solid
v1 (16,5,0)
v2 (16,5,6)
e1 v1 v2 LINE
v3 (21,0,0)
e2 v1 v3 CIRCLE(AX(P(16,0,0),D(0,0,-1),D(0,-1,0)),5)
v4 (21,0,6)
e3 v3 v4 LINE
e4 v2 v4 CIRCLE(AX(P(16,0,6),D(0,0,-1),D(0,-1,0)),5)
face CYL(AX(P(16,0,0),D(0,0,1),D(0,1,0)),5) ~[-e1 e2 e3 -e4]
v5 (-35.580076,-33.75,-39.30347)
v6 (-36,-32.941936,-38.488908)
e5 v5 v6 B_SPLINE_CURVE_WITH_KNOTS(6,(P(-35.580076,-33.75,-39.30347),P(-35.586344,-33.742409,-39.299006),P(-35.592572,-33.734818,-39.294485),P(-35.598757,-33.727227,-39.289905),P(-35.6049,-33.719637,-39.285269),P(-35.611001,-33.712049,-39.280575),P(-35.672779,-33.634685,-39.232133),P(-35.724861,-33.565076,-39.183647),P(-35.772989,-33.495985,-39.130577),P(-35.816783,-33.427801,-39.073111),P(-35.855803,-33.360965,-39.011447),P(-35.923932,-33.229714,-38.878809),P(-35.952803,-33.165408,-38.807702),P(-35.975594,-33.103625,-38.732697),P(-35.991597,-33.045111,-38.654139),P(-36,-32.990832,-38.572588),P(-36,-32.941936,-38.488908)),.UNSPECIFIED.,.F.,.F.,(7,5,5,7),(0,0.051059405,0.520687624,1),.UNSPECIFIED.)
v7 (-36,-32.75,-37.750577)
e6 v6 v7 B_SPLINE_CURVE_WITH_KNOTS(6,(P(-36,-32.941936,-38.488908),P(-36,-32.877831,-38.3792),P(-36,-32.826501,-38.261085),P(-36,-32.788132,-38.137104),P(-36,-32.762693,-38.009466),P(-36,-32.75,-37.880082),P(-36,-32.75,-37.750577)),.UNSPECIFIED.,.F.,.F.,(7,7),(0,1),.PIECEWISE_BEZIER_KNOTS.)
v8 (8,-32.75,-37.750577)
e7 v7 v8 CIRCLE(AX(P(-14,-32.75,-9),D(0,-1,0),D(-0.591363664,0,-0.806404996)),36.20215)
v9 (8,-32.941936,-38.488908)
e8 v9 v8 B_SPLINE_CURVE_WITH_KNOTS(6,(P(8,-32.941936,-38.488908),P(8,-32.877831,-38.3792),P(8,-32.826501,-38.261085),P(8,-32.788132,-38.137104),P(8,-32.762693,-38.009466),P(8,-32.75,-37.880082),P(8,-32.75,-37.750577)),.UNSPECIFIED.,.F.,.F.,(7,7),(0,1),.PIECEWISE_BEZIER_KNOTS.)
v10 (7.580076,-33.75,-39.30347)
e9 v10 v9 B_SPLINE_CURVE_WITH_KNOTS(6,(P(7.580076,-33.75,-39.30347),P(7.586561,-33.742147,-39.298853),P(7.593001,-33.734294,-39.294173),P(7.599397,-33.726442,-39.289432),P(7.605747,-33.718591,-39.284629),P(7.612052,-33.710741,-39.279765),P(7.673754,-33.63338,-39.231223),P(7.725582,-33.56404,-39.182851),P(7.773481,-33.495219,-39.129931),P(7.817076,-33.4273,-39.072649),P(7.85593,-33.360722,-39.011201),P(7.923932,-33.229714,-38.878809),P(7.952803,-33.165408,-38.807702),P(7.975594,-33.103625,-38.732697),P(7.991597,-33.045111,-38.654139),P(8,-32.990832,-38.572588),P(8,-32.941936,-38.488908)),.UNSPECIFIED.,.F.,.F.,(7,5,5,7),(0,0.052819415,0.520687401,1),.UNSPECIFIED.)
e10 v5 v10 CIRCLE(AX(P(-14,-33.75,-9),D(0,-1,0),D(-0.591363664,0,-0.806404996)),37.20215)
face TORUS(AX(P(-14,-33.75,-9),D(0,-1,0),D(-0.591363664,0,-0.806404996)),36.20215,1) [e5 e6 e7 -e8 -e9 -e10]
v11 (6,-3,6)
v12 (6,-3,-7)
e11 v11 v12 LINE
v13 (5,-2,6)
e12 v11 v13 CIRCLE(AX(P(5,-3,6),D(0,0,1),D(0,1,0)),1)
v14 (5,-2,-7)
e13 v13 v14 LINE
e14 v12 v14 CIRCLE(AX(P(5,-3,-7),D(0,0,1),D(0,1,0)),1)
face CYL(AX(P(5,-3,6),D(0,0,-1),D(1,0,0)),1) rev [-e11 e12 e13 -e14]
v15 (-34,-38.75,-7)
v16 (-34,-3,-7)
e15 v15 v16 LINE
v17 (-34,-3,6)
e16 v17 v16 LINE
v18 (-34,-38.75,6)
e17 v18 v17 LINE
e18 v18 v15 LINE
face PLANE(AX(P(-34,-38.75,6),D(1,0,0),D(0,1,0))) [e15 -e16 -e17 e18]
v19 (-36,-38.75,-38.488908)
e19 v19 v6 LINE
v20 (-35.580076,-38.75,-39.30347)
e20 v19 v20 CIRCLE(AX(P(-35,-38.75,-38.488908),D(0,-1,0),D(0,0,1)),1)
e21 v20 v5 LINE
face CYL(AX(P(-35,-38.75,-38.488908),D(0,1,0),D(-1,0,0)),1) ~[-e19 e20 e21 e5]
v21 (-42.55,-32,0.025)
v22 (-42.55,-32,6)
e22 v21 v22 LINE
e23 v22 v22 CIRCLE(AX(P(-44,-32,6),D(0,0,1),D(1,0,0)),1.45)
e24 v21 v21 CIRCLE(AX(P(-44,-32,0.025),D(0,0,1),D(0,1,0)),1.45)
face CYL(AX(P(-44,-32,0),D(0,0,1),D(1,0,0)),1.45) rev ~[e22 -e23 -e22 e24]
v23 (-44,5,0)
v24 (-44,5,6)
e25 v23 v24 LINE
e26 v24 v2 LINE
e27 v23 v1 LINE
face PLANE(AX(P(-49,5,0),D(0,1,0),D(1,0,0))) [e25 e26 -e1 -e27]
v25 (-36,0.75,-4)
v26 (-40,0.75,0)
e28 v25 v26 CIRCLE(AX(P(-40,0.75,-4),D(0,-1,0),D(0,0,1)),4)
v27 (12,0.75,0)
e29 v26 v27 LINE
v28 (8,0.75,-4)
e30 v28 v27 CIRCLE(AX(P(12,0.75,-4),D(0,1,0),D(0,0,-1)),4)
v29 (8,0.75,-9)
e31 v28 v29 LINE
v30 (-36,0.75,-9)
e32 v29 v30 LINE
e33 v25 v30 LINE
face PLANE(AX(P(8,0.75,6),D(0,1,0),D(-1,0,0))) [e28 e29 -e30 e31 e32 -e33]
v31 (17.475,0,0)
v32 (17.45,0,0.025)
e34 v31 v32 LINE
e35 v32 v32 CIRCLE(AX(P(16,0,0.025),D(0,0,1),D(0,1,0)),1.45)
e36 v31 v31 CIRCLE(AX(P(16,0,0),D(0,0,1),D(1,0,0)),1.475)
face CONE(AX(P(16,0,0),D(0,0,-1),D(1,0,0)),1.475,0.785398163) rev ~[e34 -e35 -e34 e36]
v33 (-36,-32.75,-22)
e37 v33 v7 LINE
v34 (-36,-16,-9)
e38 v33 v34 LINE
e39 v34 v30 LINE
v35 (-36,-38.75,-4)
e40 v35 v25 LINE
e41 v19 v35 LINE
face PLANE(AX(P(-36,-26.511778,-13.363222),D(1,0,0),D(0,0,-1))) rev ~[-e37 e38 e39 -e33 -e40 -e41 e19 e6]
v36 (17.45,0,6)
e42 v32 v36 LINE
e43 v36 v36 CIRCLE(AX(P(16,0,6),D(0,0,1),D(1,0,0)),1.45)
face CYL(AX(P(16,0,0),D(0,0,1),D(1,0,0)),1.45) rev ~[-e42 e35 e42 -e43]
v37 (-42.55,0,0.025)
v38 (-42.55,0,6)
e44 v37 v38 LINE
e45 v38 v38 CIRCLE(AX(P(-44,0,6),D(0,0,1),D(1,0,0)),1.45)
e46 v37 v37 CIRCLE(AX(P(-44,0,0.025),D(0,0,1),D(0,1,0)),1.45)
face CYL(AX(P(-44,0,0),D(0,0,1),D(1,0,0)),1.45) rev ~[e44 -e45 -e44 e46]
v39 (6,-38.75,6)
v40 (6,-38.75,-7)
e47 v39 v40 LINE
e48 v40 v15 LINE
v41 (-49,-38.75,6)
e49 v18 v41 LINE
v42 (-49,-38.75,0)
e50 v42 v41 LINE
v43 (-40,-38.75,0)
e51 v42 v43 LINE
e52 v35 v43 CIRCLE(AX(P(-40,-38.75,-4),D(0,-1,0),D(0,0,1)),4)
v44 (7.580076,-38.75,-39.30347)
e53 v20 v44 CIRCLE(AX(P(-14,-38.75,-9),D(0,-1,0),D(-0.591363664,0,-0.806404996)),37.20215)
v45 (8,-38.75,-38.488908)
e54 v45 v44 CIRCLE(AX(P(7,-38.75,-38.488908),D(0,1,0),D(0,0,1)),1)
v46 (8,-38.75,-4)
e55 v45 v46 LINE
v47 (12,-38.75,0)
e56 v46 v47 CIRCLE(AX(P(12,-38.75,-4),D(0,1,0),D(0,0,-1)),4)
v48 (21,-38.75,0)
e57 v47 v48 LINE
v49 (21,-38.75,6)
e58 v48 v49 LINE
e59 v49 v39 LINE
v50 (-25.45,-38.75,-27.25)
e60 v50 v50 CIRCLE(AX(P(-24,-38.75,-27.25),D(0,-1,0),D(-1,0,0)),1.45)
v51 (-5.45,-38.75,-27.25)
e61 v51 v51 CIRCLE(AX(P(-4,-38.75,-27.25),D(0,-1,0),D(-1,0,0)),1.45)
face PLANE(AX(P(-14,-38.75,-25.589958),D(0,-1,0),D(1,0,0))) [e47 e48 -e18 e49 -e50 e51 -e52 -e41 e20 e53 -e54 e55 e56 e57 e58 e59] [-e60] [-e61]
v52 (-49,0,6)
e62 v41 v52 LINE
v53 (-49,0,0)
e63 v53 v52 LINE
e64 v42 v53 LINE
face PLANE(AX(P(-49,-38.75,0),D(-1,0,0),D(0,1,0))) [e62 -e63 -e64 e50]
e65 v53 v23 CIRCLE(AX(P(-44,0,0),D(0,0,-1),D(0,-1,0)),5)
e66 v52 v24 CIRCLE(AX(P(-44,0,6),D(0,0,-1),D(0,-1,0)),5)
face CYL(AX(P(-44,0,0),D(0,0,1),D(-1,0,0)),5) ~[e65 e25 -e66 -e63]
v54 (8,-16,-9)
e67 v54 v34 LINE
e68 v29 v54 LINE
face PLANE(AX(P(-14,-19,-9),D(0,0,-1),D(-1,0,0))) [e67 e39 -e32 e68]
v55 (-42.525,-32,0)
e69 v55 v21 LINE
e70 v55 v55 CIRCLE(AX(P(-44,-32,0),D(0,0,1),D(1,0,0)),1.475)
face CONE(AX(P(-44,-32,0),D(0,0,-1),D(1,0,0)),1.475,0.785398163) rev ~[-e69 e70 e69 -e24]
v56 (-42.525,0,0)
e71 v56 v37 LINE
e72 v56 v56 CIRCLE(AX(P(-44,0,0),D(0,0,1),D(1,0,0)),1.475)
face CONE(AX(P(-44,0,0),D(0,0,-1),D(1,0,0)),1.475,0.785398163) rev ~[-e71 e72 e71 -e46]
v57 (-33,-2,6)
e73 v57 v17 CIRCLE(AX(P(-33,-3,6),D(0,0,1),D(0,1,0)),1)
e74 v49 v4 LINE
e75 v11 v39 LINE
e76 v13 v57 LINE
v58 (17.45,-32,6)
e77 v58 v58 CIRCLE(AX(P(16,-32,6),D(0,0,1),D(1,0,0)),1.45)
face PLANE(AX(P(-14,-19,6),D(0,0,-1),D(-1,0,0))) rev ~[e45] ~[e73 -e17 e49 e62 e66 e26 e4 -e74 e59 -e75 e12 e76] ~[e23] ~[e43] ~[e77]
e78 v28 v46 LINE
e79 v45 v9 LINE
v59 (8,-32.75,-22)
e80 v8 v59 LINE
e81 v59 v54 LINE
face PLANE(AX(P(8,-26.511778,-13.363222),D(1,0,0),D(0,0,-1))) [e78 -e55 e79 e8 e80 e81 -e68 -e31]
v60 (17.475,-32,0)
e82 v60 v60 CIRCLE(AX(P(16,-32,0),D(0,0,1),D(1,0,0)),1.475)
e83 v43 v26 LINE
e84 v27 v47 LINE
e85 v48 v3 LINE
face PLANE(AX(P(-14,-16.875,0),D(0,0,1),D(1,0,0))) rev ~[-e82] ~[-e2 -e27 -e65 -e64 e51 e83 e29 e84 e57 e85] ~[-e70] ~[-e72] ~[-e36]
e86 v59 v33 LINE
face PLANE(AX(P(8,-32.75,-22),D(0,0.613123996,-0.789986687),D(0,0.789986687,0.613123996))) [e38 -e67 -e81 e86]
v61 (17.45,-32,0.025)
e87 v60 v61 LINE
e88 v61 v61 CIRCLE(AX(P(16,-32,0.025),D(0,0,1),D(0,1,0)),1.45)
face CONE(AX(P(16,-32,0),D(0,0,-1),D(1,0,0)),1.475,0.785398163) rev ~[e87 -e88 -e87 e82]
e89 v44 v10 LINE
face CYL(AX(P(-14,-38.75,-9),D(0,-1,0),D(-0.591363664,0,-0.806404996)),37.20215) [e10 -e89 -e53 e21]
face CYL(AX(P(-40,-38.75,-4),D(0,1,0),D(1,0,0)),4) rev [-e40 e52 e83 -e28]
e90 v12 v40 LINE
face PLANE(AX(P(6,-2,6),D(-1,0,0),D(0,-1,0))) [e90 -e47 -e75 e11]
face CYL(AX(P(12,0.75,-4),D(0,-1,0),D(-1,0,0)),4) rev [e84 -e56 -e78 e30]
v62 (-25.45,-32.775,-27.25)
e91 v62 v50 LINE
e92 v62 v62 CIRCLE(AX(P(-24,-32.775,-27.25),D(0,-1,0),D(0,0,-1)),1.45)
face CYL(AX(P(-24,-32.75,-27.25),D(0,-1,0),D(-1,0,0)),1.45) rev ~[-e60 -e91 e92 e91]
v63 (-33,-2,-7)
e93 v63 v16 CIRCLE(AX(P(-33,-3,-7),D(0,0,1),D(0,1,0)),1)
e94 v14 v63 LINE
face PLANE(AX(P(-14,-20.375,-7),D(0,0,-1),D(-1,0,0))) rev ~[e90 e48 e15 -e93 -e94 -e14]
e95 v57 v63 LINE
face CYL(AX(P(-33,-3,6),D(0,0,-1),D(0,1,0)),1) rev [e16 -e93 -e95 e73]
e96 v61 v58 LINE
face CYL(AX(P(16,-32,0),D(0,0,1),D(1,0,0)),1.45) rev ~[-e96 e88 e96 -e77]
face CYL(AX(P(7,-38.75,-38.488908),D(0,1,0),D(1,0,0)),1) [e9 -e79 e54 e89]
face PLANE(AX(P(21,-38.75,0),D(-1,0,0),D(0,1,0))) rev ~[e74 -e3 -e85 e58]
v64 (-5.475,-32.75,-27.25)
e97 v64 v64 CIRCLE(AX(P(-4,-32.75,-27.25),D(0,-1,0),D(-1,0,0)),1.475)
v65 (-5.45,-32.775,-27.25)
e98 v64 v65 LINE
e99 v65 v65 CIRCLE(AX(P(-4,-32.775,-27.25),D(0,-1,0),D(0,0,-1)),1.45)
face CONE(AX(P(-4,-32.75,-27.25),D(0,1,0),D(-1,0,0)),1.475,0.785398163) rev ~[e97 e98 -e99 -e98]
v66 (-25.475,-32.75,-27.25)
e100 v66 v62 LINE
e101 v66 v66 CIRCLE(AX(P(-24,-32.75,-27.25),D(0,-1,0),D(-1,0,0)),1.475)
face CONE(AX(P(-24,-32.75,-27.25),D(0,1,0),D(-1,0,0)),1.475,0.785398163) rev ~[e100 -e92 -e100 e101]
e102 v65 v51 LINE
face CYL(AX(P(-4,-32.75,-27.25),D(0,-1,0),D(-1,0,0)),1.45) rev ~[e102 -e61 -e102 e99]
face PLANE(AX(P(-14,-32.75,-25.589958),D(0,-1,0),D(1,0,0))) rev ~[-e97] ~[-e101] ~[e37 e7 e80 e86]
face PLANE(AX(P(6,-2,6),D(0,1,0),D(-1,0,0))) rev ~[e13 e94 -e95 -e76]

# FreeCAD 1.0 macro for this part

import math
import FreeCAD as App
import Part
import Sketcher
from FreeCAD import Vector


def edges_at(feature, points):
    """Names of the edges that pass closest to the given points."""
    edges = feature.Shape.Edges
    near = lambda p: min(range(len(edges)), key=lambda i: edges[i].distToShape(Part.Vertex(*p))[0])
    return sorted({f"Edge{near(p) + 1}" for p in points})


def add_polygon(sketch, points):
    """Adds a closed chain of lines whose ends are joined by coincident constraints."""
    first, n = sketch.GeometryCount, len(points)
    for a, b in zip(points, points[1:] + points[:1]):
        sketch.addGeometry(Part.LineSegment(App.Vector(*a, 0), App.Vector(*b, 0)), False)
    for i in range(n):
        sketch.addConstraint(Sketcher.Constraint("Coincident", first + i, 2, first + (i + 1) % n, 1))

doc = App.newDocument("Part")
body = doc.addObject("PartDesign::Body", "Body")

sketch1 = body.newObject("Sketcher::SketchObject", "Sketch")
sketch1.AttachmentSupport = (doc.getObject("XY_Plane"), [""])
sketch1.MapMode = "FlatFace"
add_polygon(sketch1, [(-49, 5), (-49, -39), (21, -39), (21, 5)])
sketch1.addConstraint(Sketcher.Constraint("Vertical", 0))
sketch1.addConstraint(Sketcher.Constraint("Horizontal", 1))
sketch1.addConstraint(Sketcher.Constraint("Vertical", 2))
sketch1.addConstraint(Sketcher.Constraint("Horizontal", 3))
sketch1.addConstraint(Sketcher.Constraint("DistanceX", 1, 1, 1, 2, 70.0))
sketch1.addConstraint(Sketcher.Constraint("DistanceX", 0, 2, -1, 1, 49.0))
sketch1.addConstraint(Sketcher.Constraint("DistanceY", -1, 1, 2, 2, 5.0))
sketch1.addConstraint(Sketcher.Constraint("DistanceY", 0, 2, 0, 1, 43.75))
pad1 = body.newObject("PartDesign::Pad", "Pad")
pad1.Profile = sketch1
pad1.Length = 6

sketch2 = body.newObject("Sketcher::SketchObject", "Sketch001")
sketch2.AttachmentSupport = (doc.getObject("XY_Plane"), [""])
sketch2.MapMode = "FlatFace"
sketch2.AttachmentOffset = App.Placement(Vector(0, 0, 6), App.Rotation())
add_polygon(sketch2, [(8, 1), (-36, 1), (-36, -39), (8, -39)])
sketch2.addConstraint(Sketcher.Constraint("Horizontal", 0))
sketch2.addConstraint(Sketcher.Constraint("Vertical", 1))
sketch2.addConstraint(Sketcher.Constraint("Horizontal", 2))
sketch2.addConstraint(Sketcher.Constraint("Vertical", 3))
sketch2.addConstraint(Sketcher.Constraint("DistanceX", 0, 2, 0, 1, 44.0))
sketch2.addConstraint(Sketcher.Constraint("DistanceY", 1, 2, 1, 1, 39.5))
sketch2.addConstraint(Sketcher.Constraint("DistanceX", 0, 2, -1, 1, 36.0))
sketch2.addConstraint(Sketcher.Constraint("DistanceY", -1, 1, 0, 2, 0.75))
pad2 = body.newObject("PartDesign::Pad", "Pad001")
pad2.Profile = sketch2
pad2.Length = 15
pad2.Reversed = True

sketch3 = body.newObject("Sketcher::SketchObject", "Sketch002")
sketch3.AttachmentSupport = (doc.getObject("XY_Plane"), [""])
sketch3.MapMode = "FlatFace"
sketch3.AttachmentOffset = App.Placement(Vector(0, 0, 6), App.Rotation())
add_polygon(sketch3, [(6, -2), (-34, -2), (-34, -39), (6, -39)])
sketch3.addConstraint(Sketcher.Constraint("Horizontal", 0))
sketch3.addConstraint(Sketcher.Constraint("Vertical", 1))
sketch3.addConstraint(Sketcher.Constraint("Horizontal", 2))
sketch3.addConstraint(Sketcher.Constraint("Vertical", 3))
sketch3.addConstraint(Sketcher.Constraint("DistanceX", 0, 2, 0, 1, 40.0))
sketch3.addConstraint(Sketcher.Constraint("DistanceX", 0, 2, -1, 1, 34.0))
sketch3.addConstraint(Sketcher.Constraint("DistanceY", 0, 2, -1, 1, 2.0))
sketch3.addConstraint(Sketcher.Constraint("DistanceY", 1, 2, 1, 1, 36.75))
pocket1 = body.newObject("PartDesign::Pocket", "Pocket")
pocket1.Profile = sketch3
pocket1.Length = 13

sketch4 = body.newObject("Sketcher::SketchObject", "Sketch003")
sketch4.AttachmentSupport = (doc.getObject("XZ_Plane"), [""])
sketch4.MapMode = "FlatFace"
sketch4.AttachmentOffset = App.Placement(Vector(0, 0, 38.75), App.Rotation())
sketch4.addGeometry(Part.LineSegment(Vector(-36, -9, 0), Vector(-36, -39, 0)), False)
sketch4.addGeometry(Part.ArcOfCircle(Part.Circle(Vector(-14, -9, 0), Vector(0, 0, 1), 37), math.radians(-126), math.radians(-54)), False)
sketch4.addGeometry(Part.LineSegment(Vector(8, -39, 0), Vector(8, -9, 0)), False)
sketch4.addGeometry(Part.LineSegment(Vector(8, -9, 0), Vector(-36, -9, 0)), False)
sketch4.addConstraint(Sketcher.Constraint("Coincident", 0, 2, 1, 1))
sketch4.addConstraint(Sketcher.Constraint("Coincident", 1, 2, 2, 1))
sketch4.addConstraint(Sketcher.Constraint("Coincident", 2, 2, 3, 1))
sketch4.addConstraint(Sketcher.Constraint("Coincident", 3, 2, 0, 1))
sketch4.addConstraint(Sketcher.Constraint("Vertical", 0))
sketch4.addConstraint(Sketcher.Constraint("Vertical", 2))
sketch4.addConstraint(Sketcher.Constraint("Horizontal", 3))
sketch4.addConstraint(Sketcher.Constraint("Horizontal", 0, 2, 1, 2))
sketch4.addConstraint(Sketcher.Constraint("Horizontal", 1, 3, 2, 2))
sketch4.addConstraint(Sketcher.Constraint("DistanceX", 3, 2, 3, 1, 44.0))
sketch4.addConstraint(Sketcher.Constraint("DistanceY", 0, 2, 0, 1, 30.0))
sketch4.addConstraint(Sketcher.Constraint("DistanceX", 1, 3, -1, 1, 14.0))
sketch4.addConstraint(Sketcher.Constraint("DistanceY", 1, 3, -1, 1, 9.0))
pad3 = body.newObject("PartDesign::Pad", "Pad002")
pad3.Profile = sketch4
pad3.Length = 6
pad3.Reversed = True

sketch5 = body.newObject("Sketcher::SketchObject", "Sketch004")
sketch5.AttachmentSupport = (doc.getObject("YZ_Plane"), [""])
sketch5.MapMode = "FlatFace"
sketch5.AttachmentOffset = App.Placement(Vector(0, 0, 8), App.Rotation())
add_polygon(sketch5, [(-33, -9), (-33, -22), (-16, -9)])
sketch5.addConstraint(Sketcher.Constraint("Vertical", 0))
sketch5.addConstraint(Sketcher.Constraint("Horizontal", 2))
sketch5.addConstraint(Sketcher.Constraint("DistanceY", 0, 2, 0, 1, 13.0))
sketch5.addConstraint(Sketcher.Constraint("DistanceY", 0, 2, -1, 1, 22.0))
sketch5.addConstraint(Sketcher.Constraint("DistanceX", 1, 2, -1, 1, 16.0))
sketch5.addConstraint(Sketcher.Constraint("DistanceX", 2, 2, 2, 1, 16.75))
pad4 = body.newObject("PartDesign::Pad", "Pad003")
pad4.Profile = sketch5
pad4.Length = 44
pad4.Reversed = True
doc.recompute()

fillet = body.newObject("PartDesign::Fillet", "Fillet")
fillet.Base = (pad4, edges_at(pad4, [(-36, -35.75, -39), (-14, -32.75, -46.202), (8, -35.75, -39)]))
fillet.Radius = 1
doc.recompute()

fillet2 = body.newObject("PartDesign::Fillet", "Fillet001")
fillet2.Base = (fillet, edges_at(fillet, [(8, -19, 0), (-36, -19, 0)]))
fillet2.Radius = 4
doc.recompute()

fillet3 = body.newObject("PartDesign::Fillet", "Fillet002")
fillet3.Base = (fillet2, edges_at(fillet2, [(6, -2, -0.5), (-34, -2, -0.5)]))
fillet3.Radius = 1
doc.recompute()

fillet4 = body.newObject("PartDesign::Fillet", "Fillet003")
fillet4.Base = (fillet3, edges_at(fillet3, [(-49, 5, 3), (21, 5, 3)]))
fillet4.Radius = 5

sketch6 = body.newObject("Sketcher::SketchObject", "Sketch005")
sketch6.AttachmentSupport = (doc.getObject("XY_Plane"), [""])
sketch6.MapMode = "FlatFace"
sketch6.addGeometry(Part.Circle(Vector(16, 0, 0), Vector(0, 0, 1), 1.4), False)
sketch6.addGeometry(Part.Circle(Vector(16, -32, 0), Vector(0, 0, 1), 1.4), False)
sketch6.addGeometry(Part.Circle(Vector(-44, -32, 0), Vector(0, 0, 1), 1.4), False)
sketch6.addGeometry(Part.Circle(Vector(-44, 0, 0), Vector(0, 0, 1), 1.4), False)
sketch6.addConstraint(Sketcher.Constraint("Equal", 0, 1))
sketch6.addConstraint(Sketcher.Constraint("Equal", 1, 2))
sketch6.addConstraint(Sketcher.Constraint("Equal", 2, 3))
sketch6.addConstraint(Sketcher.Constraint("PointOnObject", 0, 3, -1))
sketch6.addConstraint(Sketcher.Constraint("PointOnObject", 3, 3, -1))
sketch6.addConstraint(Sketcher.Constraint("Horizontal", 1, 3, 2, 3))
sketch6.addConstraint(Sketcher.Constraint("Vertical", 0, 3, 1, 3))
sketch6.addConstraint(Sketcher.Constraint("Vertical", 2, 3, 3, 3))
sketch6.addConstraint(Sketcher.Constraint("Diameter", 0, 2.9))
sketch6.addConstraint(Sketcher.Constraint("DistanceX", -1, 1, 0, 3, 16.0))
sketch6.addConstraint(Sketcher.Constraint("DistanceY", 1, 3, -1, 1, 32.0))
sketch6.addConstraint(Sketcher.Constraint("DistanceX", 2, 3, -1, 1, 44.0))
doc.recompute()
hole = body.newObject("PartDesign::Hole", "Hole")
hole.Profile = sketch6
hole.ThreadType = "None"
hole.Diameter = 2.9
hole.DepthType = "ThroughAll"
hole.HoleCutType = "Countersink"
hole.HoleCutDiameter = 2.95
hole.HoleCutCountersinkAngle = 90
hole.Reversed = True

sketch7 = body.newObject("Sketcher::SketchObject", "Sketch006")
sketch7.AttachmentSupport = (doc.getObject("XZ_Plane"), [""])
sketch7.MapMode = "FlatFace"
sketch7.AttachmentOffset = App.Placement(Vector(0, 0, 32.75), App.Rotation())
sketch7.addGeometry(Part.Circle(Vector(-24, -27.2, 0), Vector(0, 0, 1), 1.4), False)
sketch7.addGeometry(Part.Circle(Vector(-4, -27.2, 0), Vector(0, 0, 1), 1.4), False)
sketch7.addConstraint(Sketcher.Constraint("Equal", 0, 1))
sketch7.addConstraint(Sketcher.Constraint("Horizontal", 0, 3, 1, 3))
sketch7.addConstraint(Sketcher.Constraint("Diameter", 0, 2.9))
sketch7.addConstraint(Sketcher.Constraint("DistanceX", 0, 3, -1, 1, 24.0))
sketch7.addConstraint(Sketcher.Constraint("DistanceX", 1, 3, -1, 1, 4.0))
sketch7.addConstraint(Sketcher.Constraint("DistanceY", 0, 3, -1, 1, 27.25))
doc.recompute()
hole2 = body.newObject("PartDesign::Hole", "Hole001")
hole2.Profile = sketch7
hole2.ThreadType = "None"
hole2.Diameter = 2.9
hole2.DepthType = "ThroughAll"
hole2.HoleCutType = "Countersink"
hole2.HoleCutDiameter = 2.95
hole2.HoleCutCountersinkAngle = 90
hole2.Reversed = True

doc.recompute()
